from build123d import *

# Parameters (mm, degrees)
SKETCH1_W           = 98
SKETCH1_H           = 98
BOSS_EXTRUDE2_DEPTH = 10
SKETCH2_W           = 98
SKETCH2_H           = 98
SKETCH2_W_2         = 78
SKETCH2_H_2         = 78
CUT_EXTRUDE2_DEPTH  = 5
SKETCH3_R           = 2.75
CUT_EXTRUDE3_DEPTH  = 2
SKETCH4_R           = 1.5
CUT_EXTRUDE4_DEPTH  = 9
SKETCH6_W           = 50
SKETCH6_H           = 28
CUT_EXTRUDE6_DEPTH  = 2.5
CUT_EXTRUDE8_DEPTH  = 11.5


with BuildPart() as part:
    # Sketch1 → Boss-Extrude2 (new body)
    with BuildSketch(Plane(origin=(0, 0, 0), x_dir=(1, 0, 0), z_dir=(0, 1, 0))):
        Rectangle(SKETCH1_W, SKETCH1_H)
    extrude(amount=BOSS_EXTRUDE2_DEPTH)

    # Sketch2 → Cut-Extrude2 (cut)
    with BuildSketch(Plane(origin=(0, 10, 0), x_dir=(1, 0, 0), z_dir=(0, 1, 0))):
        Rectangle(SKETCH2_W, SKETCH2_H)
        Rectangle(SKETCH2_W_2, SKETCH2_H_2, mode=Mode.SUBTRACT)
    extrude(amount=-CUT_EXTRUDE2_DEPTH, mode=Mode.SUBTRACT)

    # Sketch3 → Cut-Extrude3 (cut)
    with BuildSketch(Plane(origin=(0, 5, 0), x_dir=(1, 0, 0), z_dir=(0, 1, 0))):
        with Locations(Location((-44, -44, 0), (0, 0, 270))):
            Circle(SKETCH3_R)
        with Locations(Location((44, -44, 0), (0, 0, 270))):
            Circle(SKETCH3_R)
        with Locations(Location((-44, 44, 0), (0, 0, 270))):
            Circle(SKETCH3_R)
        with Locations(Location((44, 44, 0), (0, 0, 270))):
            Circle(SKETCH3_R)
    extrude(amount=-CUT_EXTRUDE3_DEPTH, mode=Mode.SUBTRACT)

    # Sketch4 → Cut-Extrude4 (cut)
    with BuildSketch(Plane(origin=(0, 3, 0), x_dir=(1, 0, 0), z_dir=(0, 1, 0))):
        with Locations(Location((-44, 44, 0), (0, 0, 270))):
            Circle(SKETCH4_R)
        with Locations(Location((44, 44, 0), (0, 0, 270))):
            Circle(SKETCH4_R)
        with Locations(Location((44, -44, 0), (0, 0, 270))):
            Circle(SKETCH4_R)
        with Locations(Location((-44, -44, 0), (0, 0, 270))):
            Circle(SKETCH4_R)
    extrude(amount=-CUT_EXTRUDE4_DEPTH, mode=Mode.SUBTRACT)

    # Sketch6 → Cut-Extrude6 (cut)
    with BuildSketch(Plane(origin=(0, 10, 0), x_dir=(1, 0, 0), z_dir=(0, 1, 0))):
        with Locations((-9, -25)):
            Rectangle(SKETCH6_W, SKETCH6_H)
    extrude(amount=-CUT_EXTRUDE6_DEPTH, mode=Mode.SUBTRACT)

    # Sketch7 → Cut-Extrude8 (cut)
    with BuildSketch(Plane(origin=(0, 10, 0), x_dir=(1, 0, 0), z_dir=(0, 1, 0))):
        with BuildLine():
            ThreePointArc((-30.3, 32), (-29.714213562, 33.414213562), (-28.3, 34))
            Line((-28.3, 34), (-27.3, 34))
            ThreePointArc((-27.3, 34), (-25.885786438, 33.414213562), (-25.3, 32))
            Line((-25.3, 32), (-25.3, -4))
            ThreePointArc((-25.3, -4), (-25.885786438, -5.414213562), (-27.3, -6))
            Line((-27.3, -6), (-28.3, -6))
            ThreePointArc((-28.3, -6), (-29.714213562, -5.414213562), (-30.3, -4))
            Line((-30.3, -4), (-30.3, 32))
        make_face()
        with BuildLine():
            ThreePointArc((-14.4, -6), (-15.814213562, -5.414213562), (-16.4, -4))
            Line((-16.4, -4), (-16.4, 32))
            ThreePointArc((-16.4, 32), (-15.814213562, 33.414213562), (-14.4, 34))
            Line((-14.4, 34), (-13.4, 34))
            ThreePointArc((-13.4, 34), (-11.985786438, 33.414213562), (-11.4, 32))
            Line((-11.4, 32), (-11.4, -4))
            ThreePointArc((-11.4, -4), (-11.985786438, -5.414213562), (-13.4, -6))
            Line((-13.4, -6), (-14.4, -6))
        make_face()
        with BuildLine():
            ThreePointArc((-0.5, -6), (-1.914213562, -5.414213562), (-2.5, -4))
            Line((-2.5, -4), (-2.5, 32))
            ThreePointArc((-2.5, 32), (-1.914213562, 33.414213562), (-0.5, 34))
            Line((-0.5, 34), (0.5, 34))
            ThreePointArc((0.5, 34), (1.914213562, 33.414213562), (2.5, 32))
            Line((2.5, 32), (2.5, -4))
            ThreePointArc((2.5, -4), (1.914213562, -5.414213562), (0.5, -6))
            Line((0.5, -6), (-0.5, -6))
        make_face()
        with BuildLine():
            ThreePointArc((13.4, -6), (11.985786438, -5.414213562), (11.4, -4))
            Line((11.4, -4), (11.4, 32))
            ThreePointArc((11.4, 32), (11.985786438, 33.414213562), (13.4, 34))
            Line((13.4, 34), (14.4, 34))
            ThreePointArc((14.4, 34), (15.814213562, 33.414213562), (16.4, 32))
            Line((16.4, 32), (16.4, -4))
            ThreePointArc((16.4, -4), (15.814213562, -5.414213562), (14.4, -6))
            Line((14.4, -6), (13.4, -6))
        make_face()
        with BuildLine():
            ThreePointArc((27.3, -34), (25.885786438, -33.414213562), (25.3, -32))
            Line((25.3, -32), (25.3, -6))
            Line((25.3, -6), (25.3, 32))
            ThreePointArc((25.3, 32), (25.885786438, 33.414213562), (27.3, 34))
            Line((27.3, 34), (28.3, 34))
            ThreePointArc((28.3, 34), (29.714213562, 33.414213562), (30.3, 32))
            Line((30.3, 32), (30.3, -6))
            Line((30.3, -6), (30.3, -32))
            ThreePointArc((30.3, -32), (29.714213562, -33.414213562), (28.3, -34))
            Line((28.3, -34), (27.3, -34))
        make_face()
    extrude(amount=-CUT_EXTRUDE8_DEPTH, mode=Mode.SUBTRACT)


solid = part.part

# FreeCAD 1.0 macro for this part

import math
import FreeCAD as App
import Part
import Sketcher
from FreeCAD import Vector
Q = App.Units.Quantity

doc = App.newDocument("Part")
body = doc.addObject("PartDesign::Body", "Body")

sketch1 = body.newObject("Sketcher::SketchObject", "Sketch")
sketch1.AttachmentSupport = (doc.getObject("XZ_Plane"), [""])
sketch1.MapMode = "FlatFace"
sketch1.addGeometry(Part.LineSegment(Vector(-49, -49, 0), Vector(-49, 49, 0)), False)
sketch1.addGeometry(Part.LineSegment(Vector(-49, 49, 0), Vector(49, 49, 0)), False)
sketch1.addGeometry(Part.LineSegment(Vector(49, 49, 0), Vector(49, -49, 0)), False)
sketch1.addGeometry(Part.LineSegment(Vector(49, -49, 0), Vector(-49, -49, 0)), False)
sketch1.addConstraint(Sketcher.Constraint("Coincident", 0, 2, 1, 1))
sketch1.addConstraint(Sketcher.Constraint("Coincident", 1, 2, 2, 1))
sketch1.addConstraint(Sketcher.Constraint("Coincident", 2, 2, 3, 1))
sketch1.addConstraint(Sketcher.Constraint("Coincident", 3, 2, 0, 1))
sketch1.addConstraint(Sketcher.Constraint("Vertical", 0))
sketch1.addConstraint(Sketcher.Constraint("Horizontal", 1))
sketch1.addConstraint(Sketcher.Constraint("Vertical", 2))
sketch1.addConstraint(Sketcher.Constraint("Horizontal", 3))
sketch1.addConstraint(Sketcher.Constraint("Symmetric", 0, 2, 2, 2, -1, 1))
sketch1.addConstraint(Sketcher.Constraint("Equal", 3, 0))
sketch1.addConstraint(Sketcher.Constraint("DistanceX", 1, 1, 1, 2, Q("98 mm")))
pad1 = body.newObject("PartDesign::Pad", "Pad")
pad1.Profile = sketch1
pad1.Length = 10
pad1.Reversed = True

sketch2 = body.newObject("Sketcher::SketchObject", "Sketch001")
sketch2.AttachmentSupport = (doc.getObject("XZ_Plane"), [""])
sketch2.MapMode = "FlatFace"
sketch2.AttachmentOffset = App.Placement(Vector(0, 0, -10), App.Rotation())
sketch2.addGeometry(Part.LineSegment(Vector(-49, -49, 0), Vector(-49, 49, 0)), False)
sketch2.addGeometry(Part.LineSegment(Vector(-49, 49, 0), Vector(49, 49, 0)), False)
sketch2.addGeometry(Part.LineSegment(Vector(49, 49, 0), Vector(49, -49, 0)), False)
sketch2.addGeometry(Part.LineSegment(Vector(49, -49, 0), Vector(-49, -49, 0)), False)
sketch2.addGeometry(Part.LineSegment(Vector(39, 39, 0), Vector(-39, 39, 0)), False)
sketch2.addGeometry(Part.LineSegment(Vector(-39, 39, 0), Vector(-39, -39, 0)), False)
sketch2.addGeometry(Part.LineSegment(Vector(-39, -39, 0), Vector(39, -39, 0)), False)
sketch2.addGeometry(Part.LineSegment(Vector(39, -39, 0), Vector(39, 39, 0)), False)
sketch2.addConstraint(Sketcher.Constraint("Coincident", 0, 2, 1, 1))
sketch2.addConstraint(Sketcher.Constraint("Coincident", 1, 2, 2, 1))
sketch2.addConstraint(Sketcher.Constraint("Coincident", 2, 2, 3, 1))
sketch2.addConstraint(Sketcher.Constraint("Coincident", 3, 2, 0, 1))
sketch2.addConstraint(Sketcher.Constraint("Coincident", 4, 2, 5, 1))
sketch2.addConstraint(Sketcher.Constraint("Coincident", 5, 2, 6, 1))
sketch2.addConstraint(Sketcher.Constraint("Coincident", 6, 2, 7, 1))
sketch2.addConstraint(Sketcher.Constraint("Coincident", 7, 2, 4, 1))
sketch2.addConstraint(Sketcher.Constraint("Vertical", 0))
sketch2.addConstraint(Sketcher.Constraint("Horizontal", 1))
sketch2.addConstraint(Sketcher.Constraint("Vertical", 2))
sketch2.addConstraint(Sketcher.Constraint("Horizontal", 3))
sketch2.addConstraint(Sketcher.Constraint("Horizontal", 4))
sketch2.addConstraint(Sketcher.Constraint("Vertical", 5))
sketch2.addConstraint(Sketcher.Constraint("Horizontal", 6))
sketch2.addConstraint(Sketcher.Constraint("Vertical", 7))
sketch2.addConstraint(Sketcher.Constraint("Symmetric", 0, 2, 2, 2, -1, 1))
sketch2.addConstraint(Sketcher.Constraint("Symmetric", 4, 2, 6, 2, -1, 1))
sketch2.addConstraint(Sketcher.Constraint("Equal", 3, 0))
sketch2.addConstraint(Sketcher.Constraint("Equal", 6, 5))
sketch2.addConstraint(Sketcher.Constraint("DistanceX", 1, 1, 1, 2, Q("98 mm")))
sketch2.addConstraint(Sketcher.Constraint("DistanceX", 4, 2, 4, 1, Q("78 mm")))
pocket1 = body.newObject("PartDesign::Pocket", "Pocket")
pocket1.Profile = sketch2
pocket1.Length = 5
pocket1.Reversed = True

sketch3 = body.newObject("Sketcher::SketchObject", "Sketch002")
sketch3.AttachmentSupport = (doc.getObject("XZ_Plane"), [""])
sketch3.MapMode = "FlatFace"
sketch3.AttachmentOffset = App.Placement(Vector(0, 0, -5), App.Rotation())
sketch3.addGeometry(Part.Circle(Vector(-44, 44, 0), Vector(0, 0, 1), 2.75), False)
sketch3.addGeometry(Part.Circle(Vector(44, 44, 0), Vector(0, 0, 1), 2.75), False)
sketch3.addGeometry(Part.Circle(Vector(-44, -44, 0), Vector(0, 0, 1), 2.75), False)
sketch3.addGeometry(Part.Circle(Vector(44, -44, 0), Vector(0, 0, 1), 2.75), False)
sketch3.addConstraint(Sketcher.Constraint("Equal", 0, 1))
sketch3.addConstraint(Sketcher.Constraint("Equal", 1, 2))
sketch3.addConstraint(Sketcher.Constraint("Equal", 2, 3))
sketch3.addConstraint(Sketcher.Constraint("Symmetric", 1, 3, 2, 3, -1, 1))
sketch3.addConstraint(Sketcher.Constraint("Symmetric", 0, 3, 3, 3, -1, 1))
sketch3.addConstraint(Sketcher.Constraint("Symmetric", 0, 3, 1, 3, -2))
sketch3.addConstraint(Sketcher.Constraint("Diameter", 0, Q("5.5 mm")))
sketch3.addConstraint(Sketcher.Constraint("DistanceX", 0, 3, -1, 1, Q("44 mm")))
sketch3.addConstraint(Sketcher.Constraint("DistanceY", -1, 1, 0, 3, Q("44 mm")))
pocket2 = body.newObject("PartDesign::Pocket", "Pocket001")
pocket2.Profile = sketch3
pocket2.Length = 2
pocket2.Reversed = True

sketch4 = body.newObject("Sketcher::SketchObject", "Sketch003")
sketch4.AttachmentSupport = (doc.getObject("XZ_Plane"), [""])
sketch4.MapMode = "FlatFace"
sketch4.AttachmentOffset = App.Placement(Vector(0, 0, -3), App.Rotation())
sketch4.addGeometry(Part.Circle(Vector(-44, -44, 0), Vector(0, 0, 1), 1.5), False)
sketch4.addGeometry(Part.Circle(Vector(44, -44, 0), Vector(0, 0, 1), 1.5), False)
sketch4.addGeometry(Part.Circle(Vector(44, 44, 0), Vector(0, 0, 1), 1.5), False)
sketch4.addGeometry(Part.Circle(Vector(-44, 44, 0), Vector(0, 0, 1), 1.5), False)
sketch4.addConstraint(Sketcher.Constraint("Equal", 0, 1))
sketch4.addConstraint(Sketcher.Constraint("Equal", 1, 2))
sketch4.addConstraint(Sketcher.Constraint("Equal", 2, 3))
sketch4.addConstraint(Sketcher.Constraint("Symmetric", 0, 3, 2, 3, -1, 1))
sketch4.addConstraint(Sketcher.Constraint("Symmetric", 1, 3, 3, 3, -1, 1))
sketch4.addConstraint(Sketcher.Constraint("Symmetric", 0, 3, 1, 3, -2))
sketch4.addConstraint(Sketcher.Constraint("Diameter", 0, Q("3 mm")))
sketch4.addConstraint(Sketcher.Constraint("DistanceX", 0, 3, -1, 1, Q("44 mm")))
sketch4.addConstraint(Sketcher.Constraint("DistanceY", 0, 3, -1, 1, Q("44 mm")))
pocket3 = body.newObject("PartDesign::Pocket", "Pocket002")
pocket3.Profile = sketch4
pocket3.Length = 9
pocket3.Reversed = True

sketch5 = body.newObject("Sketcher::SketchObject", "Sketch004")
sketch5.AttachmentSupport = (doc.getObject("XZ_Plane"), [""])
sketch5.MapMode = "FlatFace"
sketch5.AttachmentOffset = App.Placement(Vector(0, 0, -10), App.Rotation())
sketch5.addGeometry(Part.LineSegment(Vector(-34, 11, 0), Vector(-34, 39, 0)), False)
sketch5.addGeometry(Part.LineSegment(Vector(-34, 39, 0), Vector(16, 39, 0)), False)
sketch5.addGeometry(Part.LineSegment(Vector(16, 39, 0), Vector(16, 11, 0)), False)
sketch5.addGeometry(Part.LineSegment(Vector(16, 11, 0), Vector(-34, 11, 0)), False)
sketch5.addConstraint(Sketcher.Constraint("Coincident", 0, 2, 1, 1))
sketch5.addConstraint(Sketcher.Constraint("Coincident", 1, 2, 2, 1))
sketch5.addConstraint(Sketcher.Constraint("Coincident", 2, 2, 3, 1))
sketch5.addConstraint(Sketcher.Constraint("Coincident", 3, 2, 0, 1))
sketch5.addConstraint(Sketcher.Constraint("Vertical", 0))
sketch5.addConstraint(Sketcher.Constraint("Horizontal", 1))
sketch5.addConstraint(Sketcher.Constraint("Vertical", 2))
sketch5.addConstraint(Sketcher.Constraint("Horizontal", 3))
sketch5.addConstraint(Sketcher.Constraint("DistanceX", 1, 1, 1, 2, Q("50 mm")))
sketch5.addConstraint(Sketcher.Constraint("DistanceY", 0, 1, 0, 2, Q("28 mm")))
sketch5.addConstraint(Sketcher.Constraint("DistanceX", 0, 2, -1, 1, Q("34 mm")))
sketch5.addConstraint(Sketcher.Constraint("DistanceY", -1, 1, 0, 2, Q("39 mm")))
pocket4 = body.newObject("PartDesign::Pocket", "Pocket003")
pocket4.Profile = sketch5
pocket4.Length = 2.5
pocket4.Reversed = True

sketch6 = body.newObject("Sketcher::SketchObject", "Sketch005")
sketch6.AttachmentSupport = (doc.getObject("XZ_Plane"), [""])
sketch6.MapMode = "FlatFace"
sketch6.AttachmentOffset = App.Placement(Vector(0, 0, -10), App.Rotation())
sketch6.addGeometry(Part.ArcOfCircle(Part.Circle(Vector(-28.3, -32, 0), Vector(0, 0, 1), 2), math.radians(-180), math.radians(-90)), False)
sketch6.addGeometry(Part.LineSegment(Vector(-30.3, -32, 0), Vector(-30.3, 4, 0)), False)
sketch6.addGeometry(Part.ArcOfCircle(Part.Circle(Vector(-28.3, 4, 0), Vector(0, 0, 1), 2), math.radians(90), math.radians(180)), False)
sketch6.addGeometry(Part.LineSegment(Vector(-28.3, 6, 0), Vector(-27.3, 6, 0)), False)
sketch6.addGeometry(Part.ArcOfCircle(Part.Circle(Vector(-27.3, 4, 0), Vector(0, 0, 1), 2), math.radians(0), math.radians(90)), False)
sketch6.addGeometry(Part.LineSegment(Vector(-25.3, 4, 0), Vector(-25.3, -32, 0)), False)
sketch6.addGeometry(Part.ArcOfCircle(Part.Circle(Vector(-27.3, -32, 0), Vector(0, 0, 1), 2), math.radians(-90), math.radians(0)), False)
sketch6.addGeometry(Part.LineSegment(Vector(-27.3, -34, 0), Vector(-28.3, -34, 0)), False)
sketch6.addGeometry(Part.ArcOfCircle(Part.Circle(Vector(-14.4, 4, 0), Vector(0, 0, 1), 2), math.radians(90), math.radians(180)), False)
sketch6.addGeometry(Part.LineSegment(Vector(-14.4, 6, 0), Vector(-13.4, 6, 0)), False)
sketch6.addGeometry(Part.ArcOfCircle(Part.Circle(Vector(-13.4, 4, 0), Vector(0, 0, 1), 2), math.radians(0), math.radians(90)), False)
sketch6.addGeometry(Part.LineSegment(Vector(-11.4, 4, 0), Vector(-11.4, -32, 0)), False)
sketch6.addGeometry(Part.ArcOfCircle(Part.Circle(Vector(-13.4, -32, 0), Vector(0, 0, 1), 2), math.radians(-90), math.radians(0)), False)
sketch6.addGeometry(Part.LineSegment(Vector(-13.4, -34, 0), Vector(-14.4, -34, 0)), False)
sketch6.addGeometry(Part.ArcOfCircle(Part.Circle(Vector(-14.4, -32, 0), Vector(0, 0, 1), 2), math.radians(-180), math.radians(-90)), False)
sketch6.addGeometry(Part.LineSegment(Vector(-16.4, -32, 0), Vector(-16.4, 4, 0)), False)
sketch6.addGeometry(Part.ArcOfCircle(Part.Circle(Vector(-0.5, 4, 0), Vector(0, 0, 1), 2), math.radians(90), math.radians(180)), False)
sketch6.addGeometry(Part.LineSegment(Vector(-0.5, 6, 0), Vector(0.5, 6, 0)), False)
sketch6.addGeometry(Part.ArcOfCircle(Part.Circle(Vector(0.5, 4, 0), Vector(0, 0, 1), 2), math.radians(0), math.radians(90)), False)
sketch6.addGeometry(Part.LineSegment(Vector(2.5, 4, 0), Vector(2.5, -32, 0)), False)
sketch6.addGeometry(Part.ArcOfCircle(Part.Circle(Vector(0.5, -32, 0), Vector(0, 0, 1), 2), math.radians(-90), math.radians(0)), False)
sketch6.addGeometry(Part.LineSegment(Vector(0.5, -34, 0), Vector(-0.5, -34, 0)), False)
sketch6.addGeometry(Part.ArcOfCircle(Part.Circle(Vector(-0.5, -32, 0), Vector(0, 0, 1), 2), math.radians(-180), math.radians(-90)), False)
sketch6.addGeometry(Part.LineSegment(Vector(-2.5, -32, 0), Vector(-2.5, 4, 0)), False)
sketch6.addGeometry(Part.ArcOfCircle(Part.Circle(Vector(13.4, 4, 0), Vector(0, 0, 1), 2), math.radians(90), math.radians(180)), False)
sketch6.addGeometry(Part.LineSegment(Vector(13.4, 6, 0), Vector(14.4, 6, 0)), False)
sketch6.addGeometry(Part.ArcOfCircle(Part.Circle(Vector(14.4, 4, 0), Vector(0, 0, 1), 2), math.radians(0), math.radians(90)), False)
sketch6.addGeometry(Part.LineSegment(Vector(16.4, 4, 0), Vector(16.4, -32, 0)), False)
sketch6.addGeometry(Part.ArcOfCircle(Part.Circle(Vector(14.4, -32, 0), Vector(0, 0, 1), 2), math.radians(-90), math.radians(0)), False)
sketch6.addGeometry(Part.LineSegment(Vector(14.4, -34, 0), Vector(13.4, -34, 0)), False)
sketch6.addGeometry(Part.ArcOfCircle(Part.Circle(Vector(13.4, -32, 0), Vector(0, 0, 1), 2), math.radians(-180), math.radians(-90)), False)
sketch6.addGeometry(Part.LineSegment(Vector(11.4, -32, 0), Vector(11.4, 4, 0)), False)
sketch6.addGeometry(Part.ArcOfCircle(Part.Circle(Vector(27.3, 32, 0), Vector(0, 0, 1), 2), math.radians(90), math.radians(180)), False)
sketch6.addGeometry(Part.LineSegment(Vector(27.3, 34, 0), Vector(28.3, 34, 0)), False)
sketch6.addGeometry(Part.ArcOfCircle(Part.Circle(Vector(28.3, 32, 0), Vector(0, 0, 1), 2), math.radians(0), math.radians(90)), False)
sketch6.addGeometry(Part.LineSegment(Vector(30.3, 32, 0), Vector(30.3, -32, 0)), False)
sketch6.addGeometry(Part.ArcOfCircle(Part.Circle(Vector(28.3, -32, 0), Vector(0, 0, 1), 2), math.radians(-90), math.radians(0)), False)
sketch6.addGeometry(Part.LineSegment(Vector(28.3, -34, 0), Vector(27.3, -34, 0)), False)
sketch6.addGeometry(Part.ArcOfCircle(Part.Circle(Vector(27.3, -32, 0), Vector(0, 0, 1), 2), math.radians(-180), math.radians(-90)), False)
sketch6.addGeometry(Part.LineSegment(Vector(25.3, -32, 0), Vector(25.3, 32, 0)), False)
sketch6.addConstraint(Sketcher.Constraint("Tangent", 0, 1, 1, 1))
sketch6.addConstraint(Sketcher.Constraint("Tangent", 1, 2, 2, 2))
sketch6.addConstraint(Sketcher.Constraint("Tangent", 2, 1, 3, 1))
sketch6.addConstraint(Sketcher.Constraint("Tangent", 3, 2, 4, 2))
sketch6.addConstraint(Sketcher.Constraint("Tangent", 4, 1, 5, 1))
sketch6.addConstraint(Sketcher.Constraint("Tangent", 5, 2, 6, 2))
sketch6.addConstraint(Sketcher.Constraint("Tangent", 6, 1, 7, 1))
sketch6.addConstraint(Sketcher.Constraint("Tangent", 7, 2, 0, 2))
sketch6.addConstraint(Sketcher.Constraint("Tangent", 8, 1, 9, 1))
sketch6.addConstraint(Sketcher.Constraint("Tangent", 9, 2, 10, 2))
sketch6.addConstraint(Sketcher.Constraint("Tangent", 10, 1, 11, 1))
sketch6.addConstraint(Sketcher.Constraint("Tangent", 11, 2, 12, 2))
sketch6.addConstraint(Sketcher.Constraint("Tangent", 12, 1, 13, 1))
sketch6.addConstraint(Sketcher.Constraint("Tangent", 13, 2, 14, 2))
sketch6.addConstraint(Sketcher.Constraint("Tangent", 14, 1, 15, 1))
sketch6.addConstraint(Sketcher.Constraint("Tangent", 15, 2, 8, 2))
sketch6.addConstraint(Sketcher.Constraint("Tangent", 16, 1, 17, 1))
sketch6.addConstraint(Sketcher.Constraint("Tangent", 17, 2, 18, 2))
sketch6.addConstraint(Sketcher.Constraint("Tangent", 18, 1, 19, 1))
sketch6.addConstraint(Sketcher.Constraint("Tangent", 19, 2, 20, 2))
sketch6.addConstraint(Sketcher.Constraint("Tangent", 20, 1, 21, 1))
sketch6.addConstraint(Sketcher.Constraint("Tangent", 21, 2, 22, 2))
sketch6.addConstraint(Sketcher.Constraint("Tangent", 22, 1, 23, 1))
sketch6.addConstraint(Sketcher.Constraint("Tangent", 23, 2, 16, 2))
sketch6.addConstraint(Sketcher.Constraint("Tangent", 24, 1, 25, 1))
sketch6.addConstraint(Sketcher.Constraint("Tangent", 25, 2, 26, 2))
sketch6.addConstraint(Sketcher.Constraint("Tangent", 26, 1, 27, 1))
sketch6.addConstraint(Sketcher.Constraint("Tangent", 27, 2, 28, 2))
sketch6.addConstraint(Sketcher.Constraint("Tangent", 28, 1, 29, 1))
sketch6.addConstraint(Sketcher.Constraint("Tangent", 29, 2, 30, 2))
sketch6.addConstraint(Sketcher.Constraint("Tangent", 30, 1, 31, 1))
sketch6.addConstraint(Sketcher.Constraint("Tangent", 31, 2, 24, 2))
sketch6.addConstraint(Sketcher.Constraint("Tangent", 32, 1, 33, 1))
sketch6.addConstraint(Sketcher.Constraint("Tangent", 33, 2, 34, 2))
sketch6.addConstraint(Sketcher.Constraint("Tangent", 34, 1, 35, 1))
sketch6.addConstraint(Sketcher.Constraint("Tangent", 35, 2, 36, 2))
sketch6.addConstraint(Sketcher.Constraint("Tangent", 36, 1, 37, 1))
sketch6.addConstraint(Sketcher.Constraint("Tangent", 37, 2, 38, 2))
sketch6.addConstraint(Sketcher.Constraint("Tangent", 38, 1, 39, 1))
sketch6.addConstraint(Sketcher.Constraint("Tangent", 39, 2, 32, 2))
sketch6.addConstraint(Sketcher.Constraint("Vertical", 1))
sketch6.addConstraint(Sketcher.Constraint("Horizontal", 3))
sketch6.addConstraint(Sketcher.Constraint("Vertical", 5))
sketch6.addConstraint(Sketcher.Constraint("Horizontal", 7))
sketch6.addConstraint(Sketcher.Constraint("Horizontal", 9))
sketch6.addConstraint(Sketcher.Constraint("Vertical", 11))
sketch6.addConstraint(Sketcher.Constraint("Horizontal", 13))
sketch6.addConstraint(Sketcher.Constraint("Vertical", 15))
sketch6.addConstraint(Sketcher.Constraint("Horizontal", 17))
sketch6.addConstraint(Sketcher.Constraint("Vertical", 19))
sketch6.addConstraint(Sketcher.Constraint("Horizontal", 21))
sketch6.addConstraint(Sketcher.Constraint("Vertical", 23))
sketch6.addConstraint(Sketcher.Constraint("Horizontal", 25))
sketch6.addConstraint(Sketcher.Constraint("Vertical", 27))
sketch6.addConstraint(Sketcher.Constraint("Horizontal", 29))
sketch6.addConstraint(Sketcher.Constraint("Vertical", 31))
sketch6.addConstraint(Sketcher.Constraint("Horizontal", 33))
sketch6.addConstraint(Sketcher.Constraint("Vertical", 35))
sketch6.addConstraint(Sketcher.Constraint("Horizontal", 37))
sketch6.addConstraint(Sketcher.Constraint("Vertical", 39))
sketch6.addConstraint(Sketcher.Constraint("Equal", 0, 2))
sketch6.addConstraint(Sketcher.Constraint("Equal", 2, 4))
sketch6.addConstraint(Sketcher.Constraint("Equal", 4, 6))
sketch6.addConstraint(Sketcher.Constraint("Equal", 6, 8))
sketch6.addConstraint(Sketcher.Constraint("Equal", 8, 10))
sketch6.addConstraint(Sketcher.Constraint("Equal", 10, 12))
sketch6.addConstraint(Sketcher.Constraint("Equal", 12, 14))
sketch6.addConstraint(Sketcher.Constraint("Equal", 14, 16))
sketch6.addConstraint(Sketcher.Constraint("Equal", 16, 18))
sketch6.addConstraint(Sketcher.Constraint("Equal", 18, 20))
sketch6.addConstraint(Sketcher.Constraint("Equal", 20, 22))
sketch6.addConstraint(Sketcher.Constraint("Equal", 22, 24))
sketch6.addConstraint(Sketcher.Constraint("Equal", 24, 26))
sketch6.addConstraint(Sketcher.Constraint("Equal", 26, 28))
sketch6.addConstraint(Sketcher.Constraint("Equal", 28, 30))
sketch6.addConstraint(Sketcher.Constraint("Equal", 30, 32))
sketch6.addConstraint(Sketcher.Constraint("Equal", 32, 34))
sketch6.addConstraint(Sketcher.Constraint("Equal", 34, 36))
sketch6.addConstraint(Sketcher.Constraint("Equal", 36, 38))
sketch6.addConstraint(Sketcher.Constraint("Symmetric", 6, 3, 32, 3, -1, 1))
sketch6.addConstraint(Sketcher.Constraint("Symmetric", 10, 3, 24, 3, -2))
sketch6.addConstraint(Sketcher.Constraint("Symmetric", 14, 3, 28, 3, -2))
sketch6.addConstraint(Sketcher.Constraint("Symmetric", 0, 3, 36, 3, -2))
sketch6.addConstraint(Sketcher.Constraint("Horizontal", 4, 3, 8, 3))
sketch6.addConstraint(Sketcher.Constraint("Horizontal", 6, 3, 12, 3))
sketch6.addConstraint(Sketcher.Constraint("Horizontal", 10, 3, 16, 3))
sketch6.addConstraint(Sketcher.Constraint("Horizontal", 14, 3, 20, 3))
sketch6.addConstraint(Sketcher.Constraint("Equal", 7, 9))
sketch6.addConstraint(Sketcher.Constraint("Equal", 13, 17))
sketch6.addConstraint(Sketcher.Constraint("Radius", 0, Q("2 mm")))
sketch6.addConstraint(Sketcher.Constraint("DistanceX", 3, 1, 3, 2, Q("1 mm")))
sketch6.addConstraint(Sketcher.Constraint("DistanceY", 1, 1, 1, 2, Q("36 mm")))
sketch6.addConstraint(Sketcher.Constraint("DistanceY", 35, 2, 35, 1, Q("64 mm")))
sketch6.addConstraint(Sketcher.Constraint("DistanceX", 0, 3, -1, 1, Q("28.3 mm")))
sketch6.addConstraint(Sketcher.Constraint("DistanceX", 8, 3, -1, 1, Q("14.4 mm")))
sketch6.addConstraint(Sketcher.Constraint("DistanceX", 16, 3, -1, 1, Q("0.5 mm")))
pocket5 = body.newObject("PartDesign::Pocket", "Pocket004")
pocket5.Profile = sketch6
pocket5.Length = 11.5
pocket5.Reversed = True

doc.recompute()
